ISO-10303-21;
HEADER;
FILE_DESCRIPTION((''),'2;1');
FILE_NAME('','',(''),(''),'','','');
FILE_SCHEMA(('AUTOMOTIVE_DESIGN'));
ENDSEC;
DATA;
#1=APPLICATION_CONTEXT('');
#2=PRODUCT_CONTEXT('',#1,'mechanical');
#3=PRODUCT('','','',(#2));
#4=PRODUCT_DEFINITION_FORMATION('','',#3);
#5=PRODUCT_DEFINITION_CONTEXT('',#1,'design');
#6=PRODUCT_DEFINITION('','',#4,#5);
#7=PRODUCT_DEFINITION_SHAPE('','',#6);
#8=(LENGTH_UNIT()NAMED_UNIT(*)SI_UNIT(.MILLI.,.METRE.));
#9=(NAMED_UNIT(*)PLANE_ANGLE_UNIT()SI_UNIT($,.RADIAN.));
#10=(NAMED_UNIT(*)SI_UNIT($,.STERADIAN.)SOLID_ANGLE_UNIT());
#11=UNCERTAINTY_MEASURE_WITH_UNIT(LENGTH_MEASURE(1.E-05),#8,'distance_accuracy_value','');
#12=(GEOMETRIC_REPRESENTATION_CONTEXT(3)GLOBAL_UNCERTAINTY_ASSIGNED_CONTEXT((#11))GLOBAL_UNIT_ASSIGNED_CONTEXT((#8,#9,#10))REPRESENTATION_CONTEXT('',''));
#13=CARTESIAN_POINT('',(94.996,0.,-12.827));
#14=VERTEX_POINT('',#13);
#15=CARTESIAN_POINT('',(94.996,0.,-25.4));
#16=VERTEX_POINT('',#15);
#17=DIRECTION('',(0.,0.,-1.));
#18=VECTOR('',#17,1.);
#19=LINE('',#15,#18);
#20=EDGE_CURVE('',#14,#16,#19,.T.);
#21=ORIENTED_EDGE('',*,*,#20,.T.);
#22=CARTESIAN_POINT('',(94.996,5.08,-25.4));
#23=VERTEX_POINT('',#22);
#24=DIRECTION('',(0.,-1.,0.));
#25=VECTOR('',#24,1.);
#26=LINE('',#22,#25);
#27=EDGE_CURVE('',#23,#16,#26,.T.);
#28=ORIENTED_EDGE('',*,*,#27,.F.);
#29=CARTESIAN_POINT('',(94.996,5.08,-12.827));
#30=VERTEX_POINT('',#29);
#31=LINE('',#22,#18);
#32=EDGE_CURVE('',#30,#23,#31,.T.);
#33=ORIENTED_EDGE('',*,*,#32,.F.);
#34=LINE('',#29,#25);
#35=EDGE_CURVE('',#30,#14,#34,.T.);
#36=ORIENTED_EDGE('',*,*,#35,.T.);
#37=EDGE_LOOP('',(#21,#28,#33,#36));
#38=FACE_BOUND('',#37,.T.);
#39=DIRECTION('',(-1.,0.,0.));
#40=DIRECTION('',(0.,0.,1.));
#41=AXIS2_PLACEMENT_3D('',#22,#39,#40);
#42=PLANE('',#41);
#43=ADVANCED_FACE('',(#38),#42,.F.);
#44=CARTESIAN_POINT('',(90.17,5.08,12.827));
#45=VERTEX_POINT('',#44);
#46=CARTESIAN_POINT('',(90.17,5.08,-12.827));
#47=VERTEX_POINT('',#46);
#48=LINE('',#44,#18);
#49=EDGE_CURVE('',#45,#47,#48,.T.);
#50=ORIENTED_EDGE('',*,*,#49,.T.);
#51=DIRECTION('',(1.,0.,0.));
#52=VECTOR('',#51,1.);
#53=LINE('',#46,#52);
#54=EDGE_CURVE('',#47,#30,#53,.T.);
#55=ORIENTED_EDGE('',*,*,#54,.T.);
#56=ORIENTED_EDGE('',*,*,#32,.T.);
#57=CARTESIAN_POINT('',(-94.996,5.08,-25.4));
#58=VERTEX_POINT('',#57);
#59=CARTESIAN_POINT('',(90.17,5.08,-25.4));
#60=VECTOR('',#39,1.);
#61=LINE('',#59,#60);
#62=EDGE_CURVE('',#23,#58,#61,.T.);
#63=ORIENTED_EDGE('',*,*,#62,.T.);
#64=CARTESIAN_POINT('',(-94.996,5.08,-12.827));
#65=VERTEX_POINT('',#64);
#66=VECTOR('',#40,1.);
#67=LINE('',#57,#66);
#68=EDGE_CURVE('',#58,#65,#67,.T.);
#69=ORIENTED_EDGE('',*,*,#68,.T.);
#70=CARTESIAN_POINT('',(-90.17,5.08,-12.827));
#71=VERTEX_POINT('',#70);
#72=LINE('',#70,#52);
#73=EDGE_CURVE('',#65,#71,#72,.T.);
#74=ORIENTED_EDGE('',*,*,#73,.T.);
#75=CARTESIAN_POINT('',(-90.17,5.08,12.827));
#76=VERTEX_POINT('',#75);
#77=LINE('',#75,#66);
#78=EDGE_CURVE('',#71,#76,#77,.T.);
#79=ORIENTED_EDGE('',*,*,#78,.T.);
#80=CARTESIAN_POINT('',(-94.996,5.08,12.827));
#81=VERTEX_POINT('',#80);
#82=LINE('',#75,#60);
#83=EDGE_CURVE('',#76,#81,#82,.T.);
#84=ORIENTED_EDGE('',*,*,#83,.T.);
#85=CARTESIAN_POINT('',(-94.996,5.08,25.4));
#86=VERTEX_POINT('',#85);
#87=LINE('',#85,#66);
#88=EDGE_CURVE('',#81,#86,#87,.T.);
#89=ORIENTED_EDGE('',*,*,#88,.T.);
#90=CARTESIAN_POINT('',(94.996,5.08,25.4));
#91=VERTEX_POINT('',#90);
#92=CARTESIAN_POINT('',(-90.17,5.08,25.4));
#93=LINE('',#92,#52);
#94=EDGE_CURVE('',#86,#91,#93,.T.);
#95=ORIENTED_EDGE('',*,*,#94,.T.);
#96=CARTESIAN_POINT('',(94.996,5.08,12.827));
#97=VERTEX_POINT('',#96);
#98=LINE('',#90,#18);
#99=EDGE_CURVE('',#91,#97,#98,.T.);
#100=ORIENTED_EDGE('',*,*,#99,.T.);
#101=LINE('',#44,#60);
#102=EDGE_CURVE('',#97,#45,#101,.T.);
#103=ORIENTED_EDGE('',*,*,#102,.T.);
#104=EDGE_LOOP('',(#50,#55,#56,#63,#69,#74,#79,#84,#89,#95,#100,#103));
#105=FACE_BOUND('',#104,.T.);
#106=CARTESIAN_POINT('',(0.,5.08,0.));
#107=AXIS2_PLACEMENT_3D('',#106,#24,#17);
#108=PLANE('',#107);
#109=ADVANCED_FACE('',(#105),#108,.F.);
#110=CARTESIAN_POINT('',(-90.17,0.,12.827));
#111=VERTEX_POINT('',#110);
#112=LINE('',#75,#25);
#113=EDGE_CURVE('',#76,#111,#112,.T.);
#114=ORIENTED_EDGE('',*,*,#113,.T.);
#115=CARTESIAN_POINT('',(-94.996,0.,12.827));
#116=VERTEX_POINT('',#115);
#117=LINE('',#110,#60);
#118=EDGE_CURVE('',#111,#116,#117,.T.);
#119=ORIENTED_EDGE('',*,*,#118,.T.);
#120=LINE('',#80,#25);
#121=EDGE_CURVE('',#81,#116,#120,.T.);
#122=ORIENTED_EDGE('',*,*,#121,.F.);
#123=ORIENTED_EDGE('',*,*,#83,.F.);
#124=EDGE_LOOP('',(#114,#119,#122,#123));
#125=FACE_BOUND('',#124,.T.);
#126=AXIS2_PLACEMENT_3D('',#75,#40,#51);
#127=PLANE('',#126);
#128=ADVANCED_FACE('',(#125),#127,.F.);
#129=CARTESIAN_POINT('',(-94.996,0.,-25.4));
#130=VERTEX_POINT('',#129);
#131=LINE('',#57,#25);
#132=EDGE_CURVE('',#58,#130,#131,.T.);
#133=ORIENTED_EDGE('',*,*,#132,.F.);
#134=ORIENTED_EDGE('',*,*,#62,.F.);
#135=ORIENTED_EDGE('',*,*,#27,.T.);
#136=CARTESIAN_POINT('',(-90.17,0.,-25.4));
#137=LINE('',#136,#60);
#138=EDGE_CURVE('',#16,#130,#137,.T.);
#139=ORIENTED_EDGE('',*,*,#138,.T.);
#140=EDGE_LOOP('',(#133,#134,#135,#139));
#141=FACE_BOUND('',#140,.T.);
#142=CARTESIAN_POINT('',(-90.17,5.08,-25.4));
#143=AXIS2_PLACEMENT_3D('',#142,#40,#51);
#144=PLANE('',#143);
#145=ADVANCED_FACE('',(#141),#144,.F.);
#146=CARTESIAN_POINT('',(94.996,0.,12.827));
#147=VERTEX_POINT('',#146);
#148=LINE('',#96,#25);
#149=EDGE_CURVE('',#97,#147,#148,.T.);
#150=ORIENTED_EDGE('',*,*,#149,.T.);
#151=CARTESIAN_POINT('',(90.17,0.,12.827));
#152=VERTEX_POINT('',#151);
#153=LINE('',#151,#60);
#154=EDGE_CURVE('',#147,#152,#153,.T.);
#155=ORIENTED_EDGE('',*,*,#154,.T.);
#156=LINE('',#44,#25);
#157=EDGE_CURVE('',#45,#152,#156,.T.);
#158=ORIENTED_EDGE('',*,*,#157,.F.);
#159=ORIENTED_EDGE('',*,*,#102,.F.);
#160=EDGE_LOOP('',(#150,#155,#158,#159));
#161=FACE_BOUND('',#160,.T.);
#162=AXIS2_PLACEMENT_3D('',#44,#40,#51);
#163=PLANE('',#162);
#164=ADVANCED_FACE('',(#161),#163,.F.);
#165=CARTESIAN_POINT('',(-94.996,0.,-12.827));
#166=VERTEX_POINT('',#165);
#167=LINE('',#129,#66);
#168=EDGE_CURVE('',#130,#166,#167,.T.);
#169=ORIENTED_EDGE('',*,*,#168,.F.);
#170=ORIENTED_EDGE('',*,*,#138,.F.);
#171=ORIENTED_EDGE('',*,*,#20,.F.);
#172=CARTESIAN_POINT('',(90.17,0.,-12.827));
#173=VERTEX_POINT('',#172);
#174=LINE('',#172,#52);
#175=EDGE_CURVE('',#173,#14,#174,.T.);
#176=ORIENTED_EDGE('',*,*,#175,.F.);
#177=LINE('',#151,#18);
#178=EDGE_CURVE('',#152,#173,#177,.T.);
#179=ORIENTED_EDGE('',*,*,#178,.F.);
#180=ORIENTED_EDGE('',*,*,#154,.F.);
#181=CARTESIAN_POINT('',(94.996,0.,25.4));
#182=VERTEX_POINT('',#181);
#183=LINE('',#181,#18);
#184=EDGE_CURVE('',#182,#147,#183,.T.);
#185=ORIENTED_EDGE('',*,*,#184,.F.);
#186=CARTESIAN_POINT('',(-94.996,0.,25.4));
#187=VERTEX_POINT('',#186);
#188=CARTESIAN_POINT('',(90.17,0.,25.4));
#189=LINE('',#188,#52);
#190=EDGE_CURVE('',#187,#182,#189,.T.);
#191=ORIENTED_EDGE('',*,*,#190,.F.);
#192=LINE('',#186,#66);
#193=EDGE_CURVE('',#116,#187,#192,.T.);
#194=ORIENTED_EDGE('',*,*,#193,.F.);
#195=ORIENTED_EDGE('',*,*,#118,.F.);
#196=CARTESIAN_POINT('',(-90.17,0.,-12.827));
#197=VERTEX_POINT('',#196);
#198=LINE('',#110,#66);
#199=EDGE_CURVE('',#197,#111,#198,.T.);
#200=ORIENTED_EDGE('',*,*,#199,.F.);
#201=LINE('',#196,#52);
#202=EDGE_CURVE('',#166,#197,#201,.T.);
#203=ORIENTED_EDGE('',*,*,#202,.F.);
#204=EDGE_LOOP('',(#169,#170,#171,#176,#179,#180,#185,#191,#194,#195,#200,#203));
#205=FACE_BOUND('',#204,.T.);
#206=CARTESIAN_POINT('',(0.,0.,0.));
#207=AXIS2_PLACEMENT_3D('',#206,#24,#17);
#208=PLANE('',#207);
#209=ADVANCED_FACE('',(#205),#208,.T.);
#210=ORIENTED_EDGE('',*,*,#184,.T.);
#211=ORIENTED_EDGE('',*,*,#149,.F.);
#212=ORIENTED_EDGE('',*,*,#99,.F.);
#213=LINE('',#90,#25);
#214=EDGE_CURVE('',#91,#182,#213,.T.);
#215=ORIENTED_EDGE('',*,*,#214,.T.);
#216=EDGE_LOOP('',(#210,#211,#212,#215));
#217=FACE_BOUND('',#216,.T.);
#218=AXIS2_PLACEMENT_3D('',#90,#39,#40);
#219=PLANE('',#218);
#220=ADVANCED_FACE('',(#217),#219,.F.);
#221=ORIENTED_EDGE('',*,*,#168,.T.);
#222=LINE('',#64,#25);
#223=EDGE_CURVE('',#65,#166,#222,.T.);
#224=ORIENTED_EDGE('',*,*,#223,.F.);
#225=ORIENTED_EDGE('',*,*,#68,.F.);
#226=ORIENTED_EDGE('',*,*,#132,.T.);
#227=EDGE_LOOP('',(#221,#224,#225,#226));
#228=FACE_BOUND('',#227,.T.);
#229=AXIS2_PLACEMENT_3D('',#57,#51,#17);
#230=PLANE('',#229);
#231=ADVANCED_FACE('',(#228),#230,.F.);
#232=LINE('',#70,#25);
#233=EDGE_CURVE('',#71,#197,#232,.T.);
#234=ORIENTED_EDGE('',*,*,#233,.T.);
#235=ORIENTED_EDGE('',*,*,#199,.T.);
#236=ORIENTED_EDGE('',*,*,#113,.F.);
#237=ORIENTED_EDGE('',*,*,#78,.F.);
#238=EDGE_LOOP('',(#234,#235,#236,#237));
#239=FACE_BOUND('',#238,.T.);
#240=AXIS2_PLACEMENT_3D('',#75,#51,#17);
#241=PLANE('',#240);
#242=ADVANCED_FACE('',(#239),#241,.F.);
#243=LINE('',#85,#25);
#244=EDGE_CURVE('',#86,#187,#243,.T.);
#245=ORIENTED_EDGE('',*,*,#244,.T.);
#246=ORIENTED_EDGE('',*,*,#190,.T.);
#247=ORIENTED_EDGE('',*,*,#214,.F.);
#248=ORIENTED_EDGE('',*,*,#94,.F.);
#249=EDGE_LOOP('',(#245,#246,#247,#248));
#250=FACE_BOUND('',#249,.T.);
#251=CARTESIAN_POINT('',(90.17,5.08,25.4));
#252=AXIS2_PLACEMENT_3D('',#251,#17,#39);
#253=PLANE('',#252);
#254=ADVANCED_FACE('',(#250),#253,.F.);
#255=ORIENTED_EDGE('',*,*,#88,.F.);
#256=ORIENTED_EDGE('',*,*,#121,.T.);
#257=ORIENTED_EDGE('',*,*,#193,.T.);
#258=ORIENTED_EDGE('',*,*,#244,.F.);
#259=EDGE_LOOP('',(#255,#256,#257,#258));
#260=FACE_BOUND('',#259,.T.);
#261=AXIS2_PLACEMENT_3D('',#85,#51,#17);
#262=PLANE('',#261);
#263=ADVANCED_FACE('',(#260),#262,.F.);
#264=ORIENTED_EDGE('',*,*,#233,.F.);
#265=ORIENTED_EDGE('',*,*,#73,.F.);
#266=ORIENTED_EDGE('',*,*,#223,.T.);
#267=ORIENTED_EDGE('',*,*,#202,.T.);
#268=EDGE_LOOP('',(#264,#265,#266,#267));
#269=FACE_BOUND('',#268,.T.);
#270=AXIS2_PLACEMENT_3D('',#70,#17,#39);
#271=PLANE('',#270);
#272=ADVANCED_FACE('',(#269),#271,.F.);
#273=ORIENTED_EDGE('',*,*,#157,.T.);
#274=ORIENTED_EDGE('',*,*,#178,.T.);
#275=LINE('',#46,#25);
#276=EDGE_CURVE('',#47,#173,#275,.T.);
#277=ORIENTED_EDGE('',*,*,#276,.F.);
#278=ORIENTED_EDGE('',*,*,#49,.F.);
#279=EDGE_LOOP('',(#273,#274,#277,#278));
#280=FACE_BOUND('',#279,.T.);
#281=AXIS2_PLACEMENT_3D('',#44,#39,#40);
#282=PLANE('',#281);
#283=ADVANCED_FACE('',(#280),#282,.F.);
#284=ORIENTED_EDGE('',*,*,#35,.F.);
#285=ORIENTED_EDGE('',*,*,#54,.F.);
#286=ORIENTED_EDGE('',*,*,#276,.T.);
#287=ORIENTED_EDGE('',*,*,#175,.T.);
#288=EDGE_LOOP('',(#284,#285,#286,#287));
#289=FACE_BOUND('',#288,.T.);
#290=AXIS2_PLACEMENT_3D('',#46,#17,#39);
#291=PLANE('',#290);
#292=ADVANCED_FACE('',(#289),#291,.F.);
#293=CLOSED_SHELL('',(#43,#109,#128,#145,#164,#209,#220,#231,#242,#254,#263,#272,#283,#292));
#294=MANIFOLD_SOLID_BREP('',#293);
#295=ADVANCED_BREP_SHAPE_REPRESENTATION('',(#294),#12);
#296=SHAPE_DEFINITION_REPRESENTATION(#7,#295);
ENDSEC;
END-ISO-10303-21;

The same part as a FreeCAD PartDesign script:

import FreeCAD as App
import Part
import Sketcher
from FreeCAD import Vector
Q = App.Units.Quantity


def add_polygon(sketch, points):
    """Adds a closed chain of lines whose ends are joined by coincident constraints."""
    first, n = sketch.GeometryCount, len(points)
    for a, b in zip(points, points[1:] + points[:1]):
        sketch.addGeometry(Part.LineSegment(App.Vector(*a, 0), App.Vector(*b, 0)), False)
    for i in range(n):
        sketch.addConstraint(Sketcher.Constraint("Coincident", first + i, 2, first + (i + 1) % n, 1))

doc = App.newDocument("Part")
body = doc.addObject("PartDesign::Body", "Body")

# Sketch on XZ plane
sketch1 = body.newObject("Sketcher::SketchObject", "Sketch")
sketch1.AttachmentSupport = (doc.getObject("XZ_Plane"), [""])
sketch1.MapMode = "FlatFace"
add_polygon(sketch1, [(95, 25.4), (95, 12.8), (90.2, 12.8), (90.2, -12.8), (95, -12.8), (95, -25.4), (-95, -25.4), (-95, -12.8), (-90.2, -12.8), (-90.2, 12.8), (-95, 12.8), (-95, 25.4)])  # lines 0-11
sketch1.addConstraint(Sketcher.Constraint("Vertical", 0))
sketch1.addConstraint(Sketcher.Constraint("Horizontal", 1))
sketch1.addConstraint(Sketcher.Constraint("Vertical", 2))
sketch1.addConstraint(Sketcher.Constraint("Horizontal", 3))
sketch1.addConstraint(Sketcher.Constraint("Vertical", 4))
sketch1.addConstraint(Sketcher.Constraint("Horizontal", 5))
sketch1.addConstraint(Sketcher.Constraint("Vertical", 6))
sketch1.addConstraint(Sketcher.Constraint("Horizontal", 7))
sketch1.addConstraint(Sketcher.Constraint("Vertical", 8))
sketch1.addConstraint(Sketcher.Constraint("Horizontal", 9))
sketch1.addConstraint(Sketcher.Constraint("Vertical", 10))
sketch1.addConstraint(Sketcher.Constraint("Horizontal", 11))
sketch1.addConstraint(Sketcher.Constraint("Symmetric", 0, 2, 6, 2, -1, 1))
sketch1.addConstraint(Sketcher.Constraint("Symmetric", 2, 2, 8, 2, -1, 1))
sketch1.addConstraint(Sketcher.Constraint("Symmetric", 4, 2, 10, 2, -1, 1))
sketch1.addConstraint(Sketcher.Constraint("Symmetric", 3, 2, 6, 2, -2))
sketch1.addConstraint(Sketcher.Constraint("DistanceY", 4, 2, -1, 1, Q("1 in")))
sketch1.addConstraint(Sketcher.Constraint("DistanceX", 1, 2, 1, 1, Q("0.19 in")))
sketch1.addConstraint(Sketcher.Constraint("DistanceX", 5, 2, 5, 1, Q("7.48 in")))
sketch1.addConstraint(Sketcher.Constraint("DistanceY", 2, 2, 2, 1, Q("1.01 in")))
pad1 = body.newObject("PartDesign::Pad", "Pad")
pad1.Profile = sketch1
pad1.Length = Q("0.2 in")
pad1.Reversed = True

doc.recompute()
